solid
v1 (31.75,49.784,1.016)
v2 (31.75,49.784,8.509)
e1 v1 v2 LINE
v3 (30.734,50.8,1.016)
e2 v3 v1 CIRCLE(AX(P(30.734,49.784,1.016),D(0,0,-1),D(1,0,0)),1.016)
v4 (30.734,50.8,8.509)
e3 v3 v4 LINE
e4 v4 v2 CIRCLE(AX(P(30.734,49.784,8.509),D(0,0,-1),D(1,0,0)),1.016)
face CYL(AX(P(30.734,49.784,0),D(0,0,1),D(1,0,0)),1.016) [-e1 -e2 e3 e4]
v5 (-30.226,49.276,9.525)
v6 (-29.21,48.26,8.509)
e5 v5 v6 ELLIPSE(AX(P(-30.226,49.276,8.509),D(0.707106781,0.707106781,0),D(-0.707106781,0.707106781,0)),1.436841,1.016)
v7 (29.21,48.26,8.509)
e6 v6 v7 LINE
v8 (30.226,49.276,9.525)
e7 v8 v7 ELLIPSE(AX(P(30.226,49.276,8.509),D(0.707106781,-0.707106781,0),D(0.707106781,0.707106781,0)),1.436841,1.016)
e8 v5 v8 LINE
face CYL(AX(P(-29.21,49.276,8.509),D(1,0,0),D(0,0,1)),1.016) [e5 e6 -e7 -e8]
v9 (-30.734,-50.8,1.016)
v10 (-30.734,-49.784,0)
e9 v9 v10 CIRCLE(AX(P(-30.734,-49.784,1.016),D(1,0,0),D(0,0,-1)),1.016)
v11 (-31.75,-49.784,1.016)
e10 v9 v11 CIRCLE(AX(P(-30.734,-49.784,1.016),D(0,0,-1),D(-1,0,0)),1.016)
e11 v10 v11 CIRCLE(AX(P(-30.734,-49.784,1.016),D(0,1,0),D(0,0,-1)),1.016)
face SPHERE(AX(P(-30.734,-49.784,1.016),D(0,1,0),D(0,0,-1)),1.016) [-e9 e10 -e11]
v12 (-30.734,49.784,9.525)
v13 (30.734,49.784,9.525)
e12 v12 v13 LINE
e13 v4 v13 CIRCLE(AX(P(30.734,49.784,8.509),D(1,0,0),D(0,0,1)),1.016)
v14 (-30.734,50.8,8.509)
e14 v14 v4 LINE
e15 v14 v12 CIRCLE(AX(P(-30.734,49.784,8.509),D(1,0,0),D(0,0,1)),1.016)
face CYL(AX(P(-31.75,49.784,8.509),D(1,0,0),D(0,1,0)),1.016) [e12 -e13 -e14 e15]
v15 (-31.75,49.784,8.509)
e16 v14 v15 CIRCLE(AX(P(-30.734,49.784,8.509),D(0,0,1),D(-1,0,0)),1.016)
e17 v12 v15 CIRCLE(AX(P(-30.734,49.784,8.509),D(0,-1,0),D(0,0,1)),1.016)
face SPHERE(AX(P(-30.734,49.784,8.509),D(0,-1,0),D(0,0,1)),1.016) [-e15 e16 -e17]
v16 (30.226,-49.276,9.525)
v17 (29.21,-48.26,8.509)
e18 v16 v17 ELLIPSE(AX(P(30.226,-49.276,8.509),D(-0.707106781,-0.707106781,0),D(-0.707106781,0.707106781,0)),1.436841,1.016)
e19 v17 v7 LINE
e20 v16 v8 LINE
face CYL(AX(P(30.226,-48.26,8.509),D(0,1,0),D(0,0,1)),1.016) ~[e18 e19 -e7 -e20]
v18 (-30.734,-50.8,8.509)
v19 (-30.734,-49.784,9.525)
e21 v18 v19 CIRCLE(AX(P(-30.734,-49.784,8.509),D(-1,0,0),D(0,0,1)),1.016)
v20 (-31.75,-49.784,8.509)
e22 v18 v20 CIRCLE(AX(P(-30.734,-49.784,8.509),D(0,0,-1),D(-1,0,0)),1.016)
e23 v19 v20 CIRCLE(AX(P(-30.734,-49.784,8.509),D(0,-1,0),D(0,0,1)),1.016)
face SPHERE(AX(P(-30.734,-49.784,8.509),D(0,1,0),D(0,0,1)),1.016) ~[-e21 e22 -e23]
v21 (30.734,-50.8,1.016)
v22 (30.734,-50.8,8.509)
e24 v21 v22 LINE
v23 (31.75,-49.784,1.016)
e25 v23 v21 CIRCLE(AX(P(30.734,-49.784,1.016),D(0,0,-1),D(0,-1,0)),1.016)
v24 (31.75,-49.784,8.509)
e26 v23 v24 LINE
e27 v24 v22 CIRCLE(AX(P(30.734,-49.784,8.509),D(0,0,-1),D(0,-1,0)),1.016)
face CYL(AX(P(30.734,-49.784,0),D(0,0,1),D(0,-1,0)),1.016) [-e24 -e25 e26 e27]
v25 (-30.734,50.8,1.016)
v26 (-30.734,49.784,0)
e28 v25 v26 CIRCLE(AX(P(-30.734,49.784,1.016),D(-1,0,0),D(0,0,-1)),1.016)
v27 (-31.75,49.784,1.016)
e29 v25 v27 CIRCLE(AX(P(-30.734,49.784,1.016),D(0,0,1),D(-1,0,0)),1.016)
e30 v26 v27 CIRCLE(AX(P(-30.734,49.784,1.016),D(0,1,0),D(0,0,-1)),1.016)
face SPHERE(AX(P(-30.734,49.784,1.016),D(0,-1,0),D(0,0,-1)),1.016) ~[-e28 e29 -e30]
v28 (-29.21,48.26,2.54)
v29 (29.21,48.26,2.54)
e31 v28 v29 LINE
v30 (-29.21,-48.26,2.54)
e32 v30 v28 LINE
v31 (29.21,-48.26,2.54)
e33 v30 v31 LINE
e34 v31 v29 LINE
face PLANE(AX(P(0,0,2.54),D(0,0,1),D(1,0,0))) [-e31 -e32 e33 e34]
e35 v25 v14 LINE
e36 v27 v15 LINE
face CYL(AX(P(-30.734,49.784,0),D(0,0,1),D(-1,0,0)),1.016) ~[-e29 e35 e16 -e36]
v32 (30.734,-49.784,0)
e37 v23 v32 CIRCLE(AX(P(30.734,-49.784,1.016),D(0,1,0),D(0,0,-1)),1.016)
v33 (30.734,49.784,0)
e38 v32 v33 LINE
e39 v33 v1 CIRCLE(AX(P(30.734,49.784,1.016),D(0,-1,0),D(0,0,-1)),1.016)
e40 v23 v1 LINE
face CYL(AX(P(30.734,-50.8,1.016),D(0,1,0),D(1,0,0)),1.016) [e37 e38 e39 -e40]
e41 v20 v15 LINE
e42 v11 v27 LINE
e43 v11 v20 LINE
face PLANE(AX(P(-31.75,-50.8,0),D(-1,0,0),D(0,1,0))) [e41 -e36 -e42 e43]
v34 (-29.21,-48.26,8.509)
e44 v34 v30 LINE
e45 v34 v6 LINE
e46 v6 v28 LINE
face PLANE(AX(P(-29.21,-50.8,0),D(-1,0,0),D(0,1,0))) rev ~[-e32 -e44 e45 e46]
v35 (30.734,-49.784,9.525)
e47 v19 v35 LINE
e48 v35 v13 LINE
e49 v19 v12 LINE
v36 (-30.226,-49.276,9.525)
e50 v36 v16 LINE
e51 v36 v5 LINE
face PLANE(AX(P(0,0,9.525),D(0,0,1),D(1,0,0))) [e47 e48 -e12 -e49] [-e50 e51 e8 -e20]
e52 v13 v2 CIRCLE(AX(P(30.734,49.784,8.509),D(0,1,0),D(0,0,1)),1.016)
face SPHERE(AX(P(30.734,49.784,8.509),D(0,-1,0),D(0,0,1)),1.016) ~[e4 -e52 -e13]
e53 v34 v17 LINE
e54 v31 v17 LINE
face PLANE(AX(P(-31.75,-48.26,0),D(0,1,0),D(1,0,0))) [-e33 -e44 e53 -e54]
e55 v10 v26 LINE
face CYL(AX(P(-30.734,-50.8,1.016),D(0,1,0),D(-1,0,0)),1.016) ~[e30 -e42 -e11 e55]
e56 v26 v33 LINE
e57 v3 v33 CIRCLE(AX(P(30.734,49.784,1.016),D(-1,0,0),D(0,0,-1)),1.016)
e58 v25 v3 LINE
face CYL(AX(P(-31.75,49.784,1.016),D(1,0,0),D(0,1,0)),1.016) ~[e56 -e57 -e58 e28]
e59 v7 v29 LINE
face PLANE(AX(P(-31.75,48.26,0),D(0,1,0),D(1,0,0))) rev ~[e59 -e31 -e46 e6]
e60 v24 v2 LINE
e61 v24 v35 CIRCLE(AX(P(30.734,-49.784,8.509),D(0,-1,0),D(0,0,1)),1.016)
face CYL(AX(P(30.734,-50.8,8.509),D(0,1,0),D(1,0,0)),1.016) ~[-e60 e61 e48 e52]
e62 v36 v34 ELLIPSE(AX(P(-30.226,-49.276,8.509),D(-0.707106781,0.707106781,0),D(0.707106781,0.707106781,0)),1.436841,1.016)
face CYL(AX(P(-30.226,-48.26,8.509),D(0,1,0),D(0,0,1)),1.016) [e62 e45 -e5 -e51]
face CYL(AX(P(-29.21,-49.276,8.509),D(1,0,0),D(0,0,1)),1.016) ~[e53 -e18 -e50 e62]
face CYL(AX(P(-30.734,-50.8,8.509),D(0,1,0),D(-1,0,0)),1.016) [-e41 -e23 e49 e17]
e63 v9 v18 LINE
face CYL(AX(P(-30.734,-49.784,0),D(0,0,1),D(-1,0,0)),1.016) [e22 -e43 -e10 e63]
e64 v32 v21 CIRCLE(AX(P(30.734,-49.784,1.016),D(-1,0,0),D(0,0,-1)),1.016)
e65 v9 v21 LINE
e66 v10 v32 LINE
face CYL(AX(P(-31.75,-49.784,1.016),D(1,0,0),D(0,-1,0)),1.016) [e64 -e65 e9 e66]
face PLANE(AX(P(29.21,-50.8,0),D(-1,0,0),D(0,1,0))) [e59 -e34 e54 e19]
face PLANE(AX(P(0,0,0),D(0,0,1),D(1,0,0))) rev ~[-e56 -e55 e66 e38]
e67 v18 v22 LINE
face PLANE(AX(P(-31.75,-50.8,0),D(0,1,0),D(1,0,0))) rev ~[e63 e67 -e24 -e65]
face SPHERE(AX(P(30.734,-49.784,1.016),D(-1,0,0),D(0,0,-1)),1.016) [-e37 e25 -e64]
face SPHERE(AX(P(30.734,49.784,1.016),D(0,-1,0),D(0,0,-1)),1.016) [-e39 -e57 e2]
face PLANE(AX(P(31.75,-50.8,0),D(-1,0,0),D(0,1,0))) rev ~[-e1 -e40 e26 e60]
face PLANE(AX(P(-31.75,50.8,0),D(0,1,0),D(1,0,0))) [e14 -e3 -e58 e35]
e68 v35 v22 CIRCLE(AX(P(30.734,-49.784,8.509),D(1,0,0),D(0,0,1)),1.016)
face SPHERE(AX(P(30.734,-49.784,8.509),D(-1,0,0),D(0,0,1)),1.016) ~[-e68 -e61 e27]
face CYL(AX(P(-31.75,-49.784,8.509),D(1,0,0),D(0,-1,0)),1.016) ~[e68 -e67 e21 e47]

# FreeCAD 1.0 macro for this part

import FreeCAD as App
import Part
import Sketcher
from FreeCAD import Vector
Q = App.Units.Quantity


def edges_at(feature, points):
    """Names of the edges that pass closest to the given points."""
    edges = feature.Shape.Edges
    near = lambda p: min(range(len(edges)), key=lambda i: edges[i].distToShape(Part.Vertex(*p))[0])
    return sorted({f"Edge{near(p) + 1}" for p in points})


def faces_at(feature, points):
    """Names of the faces that lie closest to the given points."""
    faces = feature.Shape.Faces
    near = lambda p: min(range(len(faces)), key=lambda i: faces[i].distToShape(Part.Vertex(*p))[0])
    return sorted({f"Face{near(p) + 1}" for p in points})


def add_polygon(sketch, points):
    """Adds a closed chain of lines whose ends are joined by coincident constraints."""
    first, n = sketch.GeometryCount, len(points)
    for a, b in zip(points, points[1:] + points[:1]):
        sketch.addGeometry(Part.LineSegment(App.Vector(*a, 0), App.Vector(*b, 0)), False)
    for i in range(n):
        sketch.addConstraint(Sketcher.Constraint("Coincident", first + i, 2, first + (i + 1) % n, 1))

doc = App.newDocument("Part")
params = doc.addObject("Spreadsheet::Sheet", "Params")
for row, (alias, value) in enumerate([
    ("sketch1_height", "4 in"),
    ("sketch1_width", "2.5 in"),
    ("pad1_length", "0.375 in"),
    ("thickness_wall", "0.1 in"),
    ("fillet_radius", "0.04 in"),
], start=1):
    params.set(f"A{row}", alias)
    params.set(f"B{row}", "=" + value)
    params.setAlias(f"B{row}", alias)

body = doc.addObject("PartDesign::Body", "Body")

# Sketch on XY plane
sketch1 = body.newObject("Sketcher::SketchObject", "Sketch")
sketch1.AttachmentSupport = (doc.getObject("XY_Plane"), [""])
sketch1.MapMode = "FlatFace"
add_polygon(sketch1, [(-31.75, 50.8), (-31.75, -50.8), (31.75, -50.8), (31.75, 50.8)])  # lines 0-3
sketch1.addConstraint(Sketcher.Constraint("Vertical", 0))
sketch1.addConstraint(Sketcher.Constraint("Horizontal", 1))
sketch1.addConstraint(Sketcher.Constraint("Vertical", 2))
sketch1.addConstraint(Sketcher.Constraint("Horizontal", 3))
sketch1.addConstraint(Sketcher.Constraint("Symmetric", 0, 2, 2, 2, -1, 1))
sketch1.addConstraint(Sketcher.Constraint("DistanceY", 0, 2, 0, 1, Q("4 in")))
sketch1.addConstraint(Sketcher.Constraint("DistanceX", 1, 1, 1, 2, Q("2.5 in")))
sketch1.setExpression("Constraints[9]", "Params.sketch1_height")
sketch1.setExpression("Constraints[10]", "Params.sketch1_width")
pad1 = body.newObject("PartDesign::Pad", "Pad")
pad1.Profile = sketch1
pad1.setExpression("Length", "Params.pad1_length")
doc.recompute()

thickness = body.newObject("PartDesign::Thickness", "Thickness")
thickness.Base = (pad1, faces_at(pad1, [(0, 0, 9.525)]))
thickness.setExpression("Value", "Params.thickness_wall")
thickness.Reversed = True
thickness.Join = "Arc"
doc.recompute()

fillet = body.newObject("PartDesign::Fillet", "Fillet")
fillet.Base = (thickness, edges_at(thickness, [
    (-31.75, 0, 0),
    (0, -50.8, 0),
    (31.75, 0, 0),
    (0, 50.8, 0),
    (-31.75, 0, 9.525),
    (0, -50.8, 9.525),
    (31.75, 0, 9.525),
    (0, 50.8, 9.525),
    (-29.21, 0, 9.525),
    (0, 48.26, 9.525),
    (29.21, 0, 9.525),
    (0, -48.26, 9.525),
    (-31.75, 50.8, 4.763),
    (-31.75, -50.8, 4.763),
    (31.75, 50.8, 4.763),
    (31.75, -50.8, 4.763),
]))
fillet.setExpression("Radius", "Params.fillet_radius")

doc.recompute()
